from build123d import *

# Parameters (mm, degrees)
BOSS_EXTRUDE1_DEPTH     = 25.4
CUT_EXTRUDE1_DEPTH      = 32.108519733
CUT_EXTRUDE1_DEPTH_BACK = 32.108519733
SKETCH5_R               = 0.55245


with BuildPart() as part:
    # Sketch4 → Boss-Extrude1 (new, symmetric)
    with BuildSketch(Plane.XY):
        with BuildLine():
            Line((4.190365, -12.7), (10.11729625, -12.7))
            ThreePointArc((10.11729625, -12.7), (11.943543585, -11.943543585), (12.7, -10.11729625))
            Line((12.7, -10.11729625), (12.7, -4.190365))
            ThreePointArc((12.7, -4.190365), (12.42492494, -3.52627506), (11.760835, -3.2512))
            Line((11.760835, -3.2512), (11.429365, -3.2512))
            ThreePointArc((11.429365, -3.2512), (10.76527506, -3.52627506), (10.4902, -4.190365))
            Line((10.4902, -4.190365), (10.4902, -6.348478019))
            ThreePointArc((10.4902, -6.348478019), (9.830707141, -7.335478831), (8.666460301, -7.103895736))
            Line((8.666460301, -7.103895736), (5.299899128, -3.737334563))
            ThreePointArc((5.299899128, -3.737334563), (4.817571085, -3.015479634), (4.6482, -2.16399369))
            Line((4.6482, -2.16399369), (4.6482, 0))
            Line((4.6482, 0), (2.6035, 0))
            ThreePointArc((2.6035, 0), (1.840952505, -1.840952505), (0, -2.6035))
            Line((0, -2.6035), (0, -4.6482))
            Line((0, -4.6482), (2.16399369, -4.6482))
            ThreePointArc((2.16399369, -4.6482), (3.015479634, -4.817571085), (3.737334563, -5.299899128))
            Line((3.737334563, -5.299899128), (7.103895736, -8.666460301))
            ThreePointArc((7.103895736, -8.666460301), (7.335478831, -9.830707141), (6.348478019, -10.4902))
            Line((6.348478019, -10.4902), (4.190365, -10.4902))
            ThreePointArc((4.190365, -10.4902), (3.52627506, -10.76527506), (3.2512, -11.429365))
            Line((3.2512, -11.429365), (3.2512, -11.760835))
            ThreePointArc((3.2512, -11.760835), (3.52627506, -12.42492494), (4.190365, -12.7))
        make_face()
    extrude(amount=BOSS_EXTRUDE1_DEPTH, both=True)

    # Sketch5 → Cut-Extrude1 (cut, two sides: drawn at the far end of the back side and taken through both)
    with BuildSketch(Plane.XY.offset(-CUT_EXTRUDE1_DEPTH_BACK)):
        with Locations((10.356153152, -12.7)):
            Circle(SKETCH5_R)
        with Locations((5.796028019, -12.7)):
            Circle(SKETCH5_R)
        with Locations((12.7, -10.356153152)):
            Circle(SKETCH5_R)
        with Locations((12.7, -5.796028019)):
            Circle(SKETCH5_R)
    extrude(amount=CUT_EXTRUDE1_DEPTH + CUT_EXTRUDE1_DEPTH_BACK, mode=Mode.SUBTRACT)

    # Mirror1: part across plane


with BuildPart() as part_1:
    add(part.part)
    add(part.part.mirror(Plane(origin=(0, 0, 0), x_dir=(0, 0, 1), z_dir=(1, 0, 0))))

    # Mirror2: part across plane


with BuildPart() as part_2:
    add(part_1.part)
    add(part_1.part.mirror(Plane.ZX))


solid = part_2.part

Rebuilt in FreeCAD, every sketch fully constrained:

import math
import FreeCAD as App
import Part
import Sketcher
Q = App.Units.Quantity

doc = App.newDocument("Part")
params = doc.addObject("Spreadsheet::Sheet", "Params")
for row, (alias, value) in enumerate([
    ("pad1_length", "2 in"),
], start=1):
    params.set(f"A{row}", alias)
    params.set(f"B{row}", "=" + value)
    params.setAlias(f"B{row}", alias)

body = doc.addObject("PartDesign::Body", "Body")

# Sketch on XY plane
sketch1 = doc.addObject("Sketcher::SketchObject", "Sketch")
body.addObject(sketch1)
sketch1.AttachmentSupport = (doc.XY_Plane, [""])
sketch1.MapMode = "FlatFace"
sketch1.addGeometry(Part.LineSegment(App.Vector(4.19, -12.7, 0), App.Vector(10.12, -12.7, 0)), False)
sketch1.addGeometry(Part.ArcOfCircle(Part.Circle(App.Vector(10.12, -10.12, 0), App.Vector(0, 0, 1), 2.58), math.radians(-90), math.radians(0)), False)
sketch1.addGeometry(Part.LineSegment(App.Vector(12.7, -10.12, 0), App.Vector(12.7, -4.19, 0)), False)
sketch1.addGeometry(Part.ArcOfCircle(Part.Circle(App.Vector(11.76, -4.19, 0), App.Vector(0, 0, 1), 0.94), math.radians(0), math.radians(90)), False)
sketch1.addGeometry(Part.LineSegment(App.Vector(11.76, -3.25, 0), App.Vector(11.43, -3.25, 0)), False)
sketch1.addGeometry(Part.ArcOfCircle(Part.Circle(App.Vector(11.43, -4.19, 0), App.Vector(0, 0, 1), 0.94), math.radians(90), math.radians(180)), False)
sketch1.addGeometry(Part.LineSegment(App.Vector(10.49, -4.19, 0), App.Vector(10.49, -6.35, 0)), False)
sketch1.addGeometry(Part.ArcOfCircle(Part.Circle(App.Vector(9.42, -6.35, 0), App.Vector(0, 0, 1), 1.07), math.radians(-135), math.radians(0)), False)
sketch1.addGeometry(Part.LineSegment(App.Vector(8.67, -7.1, 0), App.Vector(5.3, -3.74, 0)), False)
sketch1.addGeometry(Part.ArcOfCircle(Part.Circle(App.Vector(6.87, -2.16, 0), App.Vector(0, 0, 1), 2.23), math.radians(-180), math.radians(-135)), False)
sketch1.addGeometry(Part.LineSegment(App.Vector(4.65, -2.16, 0), App.Vector(4.65, 0, 0)), False)
sketch1.addGeometry(Part.LineSegment(App.Vector(4.65, 0, 0), App.Vector(2.6, 0, 0)), False)
sketch1.addGeometry(Part.ArcOfCircle(Part.Circle(App.Vector(0, 0, 0), App.Vector(0, 0, 1), 2.6), math.radians(-90), math.radians(0)), False)
sketch1.addGeometry(Part.LineSegment(App.Vector(0, -2.6, 0), App.Vector(0, -4.65, 0)), False)
sketch1.addGeometry(Part.LineSegment(App.Vector(0, -4.65, 0), App.Vector(2.16, -4.65, 0)), False)
sketch1.addGeometry(Part.ArcOfCircle(Part.Circle(App.Vector(2.16, -6.87, 0), App.Vector(0, 0, 1), 2.23), math.radians(45), math.radians(90)), False)
sketch1.addGeometry(Part.LineSegment(App.Vector(3.74, -5.3, 0), App.Vector(7.1, -8.67, 0)), False)
sketch1.addGeometry(Part.ArcOfCircle(Part.Circle(App.Vector(6.35, -9.42, 0), App.Vector(0, 0, 1), 1.07), math.radians(-90), math.radians(45)), False)
sketch1.addGeometry(Part.LineSegment(App.Vector(6.35, -10.49, 0), App.Vector(4.19, -10.49, 0)), False)
sketch1.addGeometry(Part.ArcOfCircle(Part.Circle(App.Vector(4.19, -11.43, 0), App.Vector(0, 0, 1), 0.94), math.radians(90), math.radians(180)), False)
sketch1.addGeometry(Part.LineSegment(App.Vector(3.25, -11.43, 0), App.Vector(3.25, -11.76, 0)), False)
sketch1.addGeometry(Part.ArcOfCircle(Part.Circle(App.Vector(4.19, -11.76, 0), App.Vector(0, 0, 1), 0.94), math.radians(-180), math.radians(-90)), False)
sketch1.addConstraint(Sketcher.Constraint("Tangent", 0, 2, 1, 1))
sketch1.addConstraint(Sketcher.Constraint("Tangent", 1, 2, 2, 1))
sketch1.addConstraint(Sketcher.Constraint("Tangent", 2, 2, 3, 1))
sketch1.addConstraint(Sketcher.Constraint("Tangent", 3, 2, 4, 1))
sketch1.addConstraint(Sketcher.Constraint("Tangent", 4, 2, 5, 1))
sketch1.addConstraint(Sketcher.Constraint("Tangent", 5, 2, 6, 1))
sketch1.addConstraint(Sketcher.Constraint("Tangent", 6, 2, 7, 2))
sketch1.addConstraint(Sketcher.Constraint("Tangent", 7, 1, 8, 1))
sketch1.addConstraint(Sketcher.Constraint("Tangent", 8, 2, 9, 2))
sketch1.addConstraint(Sketcher.Constraint("Tangent", 9, 1, 10, 1))
sketch1.addConstraint(Sketcher.Constraint("Coincident", 10, 2, 11, 1))
sketch1.addConstraint(Sketcher.Constraint("Coincident", 11, 2, 12, 2))
sketch1.addConstraint(Sketcher.Constraint("Coincident", 12, 1, 13, 1))
sketch1.addConstraint(Sketcher.Constraint("Coincident", 13, 2, 14, 1))
sketch1.addConstraint(Sketcher.Constraint("Tangent", 14, 2, 15, 2))
sketch1.addConstraint(Sketcher.Constraint("Tangent", 15, 1, 16, 1))
sketch1.addConstraint(Sketcher.Constraint("Tangent", 16, 2, 17, 2))
sketch1.addConstraint(Sketcher.Constraint("Tangent", 17, 1, 18, 1))
sketch1.addConstraint(Sketcher.Constraint("Tangent", 18, 2, 19, 1))
sketch1.addConstraint(Sketcher.Constraint("Tangent", 19, 2, 20, 1))
sketch1.addConstraint(Sketcher.Constraint("Tangent", 20, 2, 21, 1))
sketch1.addConstraint(Sketcher.Constraint("Tangent", 21, 2, 0, 1))
sketch1.addConstraint(Sketcher.Constraint("Horizontal", 0))
sketch1.addConstraint(Sketcher.Constraint("Vertical", 2))
sketch1.addConstraint(Sketcher.Constraint("Horizontal", 4))
sketch1.addConstraint(Sketcher.Constraint("Vertical", 6))
sketch1.addConstraint(Sketcher.Constraint("Vertical", 10))
sketch1.addConstraint(Sketcher.Constraint("Horizontal", 11))
sketch1.addConstraint(Sketcher.Constraint("Vertical", 13))
sketch1.addConstraint(Sketcher.Constraint("Horizontal", 14))
sketch1.addConstraint(Sketcher.Constraint("Horizontal", 18))
sketch1.addConstraint(Sketcher.Constraint("Vertical", 20))
sketch1.addConstraint(Sketcher.Constraint("Coincident", 12, 3, -1, 1))
sketch1.addConstraint(Sketcher.Constraint("Equal", 3, 5))
sketch1.addConstraint(Sketcher.Constraint("Equal", 9, 15))
sketch1.addConstraint(Sketcher.Constraint("Equal", 7, 17))
sketch1.addConstraint(Sketcher.Constraint("Equal", 5, 19))
sketch1.addConstraint(Sketcher.Constraint("Equal", 19, 21))
sketch1.addConstraint(Sketcher.Constraint("PointOnObject", 10, 2, -1))
sketch1.addConstraint(Sketcher.Constraint("PointOnObject", 12, 1, -2))
sketch1.addConstraint(Sketcher.Constraint("Parallel", 8, 16))
sketch1.addConstraint(Sketcher.Constraint("Equal", 0, 2))
sketch1.addConstraint(Sketcher.Constraint("Equal", 18, 6))
sketch1.addConstraint(Sketcher.Constraint("Equal", 14, 10))
sketch1.addConstraint(Sketcher.Constraint("Equal", 11, 13))
sketch1.addConstraint(Sketcher.Constraint("Equal", 4, 20))
sketch1.addConstraint(Sketcher.Constraint("Equal", 8, 16))
sketch1.addConstraint(Sketcher.Constraint("DistanceY", 0, 2, -1, 1, Q("0.5 in")))
sketch1.addConstraint(Sketcher.Constraint("Radius", 9, Q("0.0876 in")))
sketch1.addConstraint(Sketcher.Constraint("Radius", 12, Q("0.1025 in")))
sketch1.addConstraint(Sketcher.Constraint("DistanceX", 9, 1, 5, 2, Q("0.23 in")))
sketch1.addConstraint(Sketcher.Constraint("DistanceX", 11, 2, 11, 1, Q("0.0805 in")))
sketch1.addConstraint(Sketcher.Constraint("DistanceY", 3, 2, -1, 1, Q("0.128 in")))
sketch1.addConstraint(Sketcher.Constraint("Radius", 7, Q("1.068322 mm")))
sketch1.addConstraint(Sketcher.Constraint("DistanceX", 17, 3, 7, 3, Q("0.121 in")))
sketch1.addConstraint(Sketcher.Constraint("Radius", 1, Q("2.582704 mm")))
sketch1.addConstraint(Sketcher.Constraint("Radius", 3, Q("0.939165 mm")))
pad1 = doc.addObject("PartDesign::Pad", "Pad")
body.addObject(pad1)
pad1.Profile = sketch1
pad1.setExpression("Length", "Params.pad1_length")
pad1.Midplane = True

# Sketch on XY plane
sketch2 = doc.addObject("Sketcher::SketchObject", "Sketch001")
body.addObject(sketch2)
sketch2.AttachmentSupport = (doc.XY_Plane, [""])
sketch2.MapMode = "FlatFace"
sketch2.addGeometry(Part.Circle(App.Vector(10.4, -12.7, 0), App.Vector(0, 0, 1), 0.6), False)
sketch2.addGeometry(Part.Circle(App.Vector(5.8, -12.7, 0), App.Vector(0, 0, 1), 0.6), False)
sketch2.addGeometry(Part.Circle(App.Vector(12.7, -10.4, 0), App.Vector(0, 0, 1), 0.6), False)
sketch2.addGeometry(Part.Circle(App.Vector(12.7, -5.8, 0), App.Vector(0, 0, 1), 0.6), False)
sketch2.addConstraint(Sketcher.Constraint("Equal", 0, 1))
sketch2.addConstraint(Sketcher.Constraint("Equal", 1, 2))
sketch2.addConstraint(Sketcher.Constraint("Equal", 2, 3))
sketch2.addConstraint(Sketcher.Constraint("Horizontal", 0, 3, 1, 3))
sketch2.addConstraint(Sketcher.Constraint("Vertical", 2, 3, 3, 3))
sketch2.addConstraint(Sketcher.Constraint("Diameter", 0, Q("0.0435 in")))
sketch2.addConstraint(Sketcher.Constraint("DistanceY", 0, 3, -1, 1, Q("0.5 in")))
sketch2.addConstraint(Sketcher.Constraint("DistanceX", -1, 1, 2, 3, Q("0.5 in")))
sketch2.addConstraint(Sketcher.Constraint("DistanceX", -1, 1, 1, 3, Q("5.796028 mm")))
sketch2.addConstraint(Sketcher.Constraint("DistanceY", 3, 3, -1, 1, Q("5.796028 mm")))
sketch2.addConstraint(Sketcher.Constraint("DistanceX", -1, 1, 0, 3, Q("10.356153 mm")))
sketch2.addConstraint(Sketcher.Constraint("DistanceY", 2, 3, -1, 1, Q("10.356153 mm")))
pocket1 = doc.addObject("PartDesign::Pocket", "Pocket")
body.addObject(pocket1)
pocket1.Profile = sketch2
pocket1.Type = "ThroughAll"
pocket1.Midplane = True
body2 = doc.addObject("PartDesign::Body", "Body001")
doc.recompute()

body2.BaseFeature = body
doc.recompute()

mirroring = doc.addObject("Part::Mirroring", "Mirroring")
mirroring.Source = body
mirroring.Base = App.Vector(0, 0, 0)
mirroring.Normal = App.Vector(1, 0, 0)
body3 = doc.addObject("PartDesign::Body", "Body002")
body3.BaseFeature = mirroring
boolean = doc.addObject("PartDesign::Boolean", "Boolean")
body2.addObject(boolean)
boolean.Type = "Fuse"
boolean.addObjects([body3])
doc.recompute()
body4 = doc.addObject("PartDesign::Body", "Body003")
doc.recompute()

body4.BaseFeature = body2
doc.recompute()

mirroring2 = doc.addObject("Part::Mirroring", "Mirroring001")
mirroring2.Source = body2
mirroring2.Base = App.Vector(0, 0, 0)
mirroring2.Normal = App.Vector(0, 1, 0)
body5 = doc.addObject("PartDesign::Body", "Body004")
body5.BaseFeature = mirroring2
boolean2 = doc.addObject("PartDesign::Boolean", "Boolean001")
body4.addObject(boolean2)
boolean2.Type = "Fuse"
boolean2.addObjects([body5])
doc.recompute()
mirroring.Visibility = False
mirroring2.Visibility = False

doc.recompute()
